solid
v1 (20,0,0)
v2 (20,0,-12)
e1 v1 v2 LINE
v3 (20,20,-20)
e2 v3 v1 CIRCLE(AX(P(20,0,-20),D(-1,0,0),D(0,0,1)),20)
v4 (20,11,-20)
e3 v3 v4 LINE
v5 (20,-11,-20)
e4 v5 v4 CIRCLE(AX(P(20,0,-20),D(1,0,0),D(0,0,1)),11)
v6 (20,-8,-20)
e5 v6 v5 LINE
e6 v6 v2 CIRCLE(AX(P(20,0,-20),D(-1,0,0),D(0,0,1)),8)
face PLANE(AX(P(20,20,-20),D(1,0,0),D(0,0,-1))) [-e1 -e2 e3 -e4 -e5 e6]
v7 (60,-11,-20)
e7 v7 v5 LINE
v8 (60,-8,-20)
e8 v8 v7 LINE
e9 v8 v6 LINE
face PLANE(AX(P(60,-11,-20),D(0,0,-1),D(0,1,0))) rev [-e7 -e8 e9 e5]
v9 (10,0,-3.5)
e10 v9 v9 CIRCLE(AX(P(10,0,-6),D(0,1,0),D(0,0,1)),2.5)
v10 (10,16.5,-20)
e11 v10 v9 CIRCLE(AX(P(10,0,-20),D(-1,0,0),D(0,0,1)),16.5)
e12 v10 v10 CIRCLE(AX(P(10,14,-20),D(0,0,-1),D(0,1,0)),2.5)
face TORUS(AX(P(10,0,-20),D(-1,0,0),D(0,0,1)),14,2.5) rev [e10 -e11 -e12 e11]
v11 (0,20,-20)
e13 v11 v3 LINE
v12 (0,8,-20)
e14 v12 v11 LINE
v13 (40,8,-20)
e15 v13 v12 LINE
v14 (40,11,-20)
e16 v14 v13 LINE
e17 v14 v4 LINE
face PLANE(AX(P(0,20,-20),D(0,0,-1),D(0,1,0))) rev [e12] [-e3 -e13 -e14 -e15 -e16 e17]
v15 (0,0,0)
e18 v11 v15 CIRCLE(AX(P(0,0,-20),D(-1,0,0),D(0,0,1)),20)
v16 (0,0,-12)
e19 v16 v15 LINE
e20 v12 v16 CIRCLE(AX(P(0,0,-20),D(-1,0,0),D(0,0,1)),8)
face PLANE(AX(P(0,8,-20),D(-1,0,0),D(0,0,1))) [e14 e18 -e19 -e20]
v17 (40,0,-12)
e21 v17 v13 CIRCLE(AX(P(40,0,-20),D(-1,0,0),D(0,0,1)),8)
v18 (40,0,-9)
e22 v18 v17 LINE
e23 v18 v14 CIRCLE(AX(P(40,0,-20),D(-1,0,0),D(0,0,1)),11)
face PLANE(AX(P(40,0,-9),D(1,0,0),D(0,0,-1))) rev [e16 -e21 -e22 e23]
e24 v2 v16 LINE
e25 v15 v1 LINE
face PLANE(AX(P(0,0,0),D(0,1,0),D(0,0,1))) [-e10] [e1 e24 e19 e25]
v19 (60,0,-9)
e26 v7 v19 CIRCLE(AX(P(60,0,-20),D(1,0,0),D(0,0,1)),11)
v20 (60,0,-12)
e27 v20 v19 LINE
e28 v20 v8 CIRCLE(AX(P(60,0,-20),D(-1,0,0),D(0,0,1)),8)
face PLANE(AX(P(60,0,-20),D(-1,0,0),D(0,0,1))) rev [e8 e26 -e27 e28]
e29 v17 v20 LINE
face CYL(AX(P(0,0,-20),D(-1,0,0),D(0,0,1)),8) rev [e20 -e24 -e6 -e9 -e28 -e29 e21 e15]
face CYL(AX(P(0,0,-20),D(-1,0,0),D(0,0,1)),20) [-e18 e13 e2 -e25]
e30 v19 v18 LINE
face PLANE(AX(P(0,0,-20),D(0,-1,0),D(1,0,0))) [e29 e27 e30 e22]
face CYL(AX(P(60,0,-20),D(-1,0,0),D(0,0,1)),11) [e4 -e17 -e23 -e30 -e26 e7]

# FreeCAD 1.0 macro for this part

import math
import FreeCAD as App
import Part
import Sketcher
from FreeCAD import Vector

doc = App.newDocument("Part")
body = doc.addObject("PartDesign::Body", "Body")

# Sketch on XZ plane
sketch1 = body.newObject("Sketcher::SketchObject", "Sketch")
sketch1.AttachmentSupport = (doc.getObject("XZ_Plane"), [""])
sketch1.MapMode = "FlatFace"
sketch1.addGeometry(Part.LineSegment(Vector(0, -12, 0), Vector(0, 0, 0)), False)
sketch1.addGeometry(Part.LineSegment(Vector(0, 0, 0), Vector(20, 0, 0)), False)
sketch1.addGeometry(Part.LineSegment(Vector(20, 0, 0), Vector(20, -12, 0)), False)
sketch1.addGeometry(Part.LineSegment(Vector(20, -12, 0), Vector(0, -12, 0)), False)
sketch1.addGeometry(Part.LineSegment(Vector(0, -20, 0), Vector(20, -20, 0)), True)  # axis
sketch1.addConstraint(Sketcher.Constraint("Coincident", 0, 2, 1, 1))
sketch1.addConstraint(Sketcher.Constraint("Coincident", 1, 2, 2, 1))
sketch1.addConstraint(Sketcher.Constraint("Coincident", 2, 2, 3, 1))
sketch1.addConstraint(Sketcher.Constraint("Coincident", 3, 2, 0, 1))
sketch1.addConstraint(Sketcher.Constraint("Vertical", 0))
sketch1.addConstraint(Sketcher.Constraint("Horizontal", 1))
sketch1.addConstraint(Sketcher.Constraint("Vertical", 2))
sketch1.addConstraint(Sketcher.Constraint("Horizontal", 3))
sketch1.addConstraint(Sketcher.Constraint("Horizontal", 4))
sketch1.addConstraint(Sketcher.Constraint("Coincident", 0, 2, -1, 1))
sketch1.addConstraint(Sketcher.Constraint("PointOnObject", 4, 1, -2))
sketch1.addConstraint(Sketcher.Constraint("Vertical", 2, 2, 4, 2))
sketch1.addConstraint(Sketcher.Constraint("DistanceX", 1, 1, 1, 2, 20.0))
sketch1.addConstraint(Sketcher.Constraint("DistanceY", 0, 1, 0, 2, 12.0))
sketch1.addConstraint(Sketcher.Constraint("DistanceY", 4, 1, -1, 1, 20.0))
revolution = body.newObject("PartDesign::Revolution", "Revolution")
revolution.Profile = sketch1
revolution.ReferenceAxis = (sketch1, ["Axis0"])
revolution.Angle = 270

# Sketch on XZ plane
sketch2 = body.newObject("Sketcher::SketchObject", "Sketch001")
sketch2.AttachmentSupport = (doc.getObject("XZ_Plane"), [""])
sketch2.MapMode = "FlatFace"
sketch2.addGeometry(Part.Circle(Vector(10, -6, 0), Vector(0, 0, 1), 2.5), False)
sketch2.addGeometry(Part.LineSegment(Vector(10, -20, 0), Vector(20, -20, 0)), True)  # axis
sketch2.addConstraint(Sketcher.Constraint("Horizontal", 1))
sketch2.addConstraint(Sketcher.Constraint("Vertical", 0, 3, 1, 1))
sketch2.addConstraint(Sketcher.Constraint("Diameter", 0, 5.0))
sketch2.addConstraint(Sketcher.Constraint("DistanceX", 1, 1, 1, 2, 10.0))
sketch2.addConstraint(Sketcher.Constraint("DistanceX", -1, 1, 0, 3, 10.0))
sketch2.addConstraint(Sketcher.Constraint("DistanceY", 0, 3, -1, 1, 6.0))
sketch2.addConstraint(Sketcher.Constraint("DistanceY", 1, 1, -1, 1, 20.0))
groove = body.newObject("PartDesign::Groove", "Groove")
groove.Profile = sketch2
groove.ReferenceAxis = (sketch2, ["Axis0"])
groove.Angle = 270

# Sketch on YZ plane
sketch3 = body.newObject("Sketcher::SketchObject", "Sketch002")
sketch3.AttachmentSupport = (doc.getObject("YZ_Plane"), [""])
sketch3.MapMode = "FlatFace"
sketch3.AttachmentOffset = App.Placement(Vector(0, 0, 20), App.Rotation())
sketch3.addGeometry(Part.LineSegment(Vector(-8, -20, 0), Vector(-11, -20, 0)), False)
sketch3.addGeometry(Part.ArcOfCircle(Part.Circle(Vector(0, -20, 0), Vector(0, 0, 1), 11), math.radians(180), math.radians(360)), False)
sketch3.addGeometry(Part.LineSegment(Vector(11, -20, 0), Vector(8, -20, 0)), False)
sketch3.addGeometry(Part.ArcOfCircle(Part.Circle(Vector(0, -20, 0), Vector(0, 0, 1), 8), math.radians(180), math.radians(360)), False)
sketch3.addConstraint(Sketcher.Constraint("Coincident", 0, 2, 1, 1))
sketch3.addConstraint(Sketcher.Constraint("Coincident", 1, 2, 2, 1))
sketch3.addConstraint(Sketcher.Constraint("Coincident", 2, 2, 3, 2))
sketch3.addConstraint(Sketcher.Constraint("Coincident", 3, 1, 0, 1))
sketch3.addConstraint(Sketcher.Constraint("Horizontal", 0))
sketch3.addConstraint(Sketcher.Constraint("Horizontal", 2))
sketch3.addConstraint(Sketcher.Constraint("Coincident", 3, 3, 1, 3))
sketch3.addConstraint(Sketcher.Constraint("Symmetric", 0, 2, 1, 2, -2))
sketch3.addConstraint(Sketcher.Constraint("Horizontal", 3, 3, 0, 2))
sketch3.addConstraint(Sketcher.Constraint("Radius", 1, 11.0))
sketch3.addConstraint(Sketcher.Constraint("Radius", 3, 8.0))
sketch3.addConstraint(Sketcher.Constraint("DistanceY", 1, 3, -1, 1, 20.0))
pad1 = body.newObject("PartDesign::Pad", "Pad")
pad1.Profile = sketch3
pad1.Length = 40

# Sketch on XY plane
sketch4 = body.newObject("Sketcher::SketchObject", "Sketch003")
sketch4.AttachmentSupport = (doc.getObject("XY_Plane"), [""])
sketch4.MapMode = "FlatFace"
sketch4.AttachmentOffset = App.Placement(Vector(0, 0, -20), App.Rotation())
sketch4.addGeometry(Part.LineSegment(Vector(40, 11, 0), Vector(40, 8, 0)), False)
sketch4.addGeometry(Part.LineSegment(Vector(40, 8, 0), Vector(60, 8, 0)), False)
sketch4.addGeometry(Part.LineSegment(Vector(60, 8, 0), Vector(60, 11, 0)), False)
sketch4.addGeometry(Part.LineSegment(Vector(60, 11, 0), Vector(40, 11, 0)), False)
sketch4.addConstraint(Sketcher.Constraint("Coincident", 0, 2, 1, 1))
sketch4.addConstraint(Sketcher.Constraint("Coincident", 1, 2, 2, 1))
sketch4.addConstraint(Sketcher.Constraint("Coincident", 2, 2, 3, 1))
sketch4.addConstraint(Sketcher.Constraint("Coincident", 3, 2, 0, 1))
sketch4.addConstraint(Sketcher.Constraint("Vertical", 0))
sketch4.addConstraint(Sketcher.Constraint("Horizontal", 1))
sketch4.addConstraint(Sketcher.Constraint("Vertical", 2))
sketch4.addConstraint(Sketcher.Constraint("Horizontal", 3))
sketch4.addConstraint(Sketcher.Constraint("DistanceX", 1, 1, 1, 2, 20.0))
sketch4.addConstraint(Sketcher.Constraint("DistanceY", 0, 2, 0, 1, 3.0))
sketch4.addConstraint(Sketcher.Constraint("DistanceX", -1, 1, 0, 2, 40.0))
sketch4.addConstraint(Sketcher.Constraint("DistanceY", -1, 1, 0, 2, 8.0))
revolution2 = body.newObject("PartDesign::Revolution", "Revolution001")
revolution2.Profile = sketch4
revolution2.ReferenceAxis = (sketch4, ["H_Axis"])
revolution2.Angle = 90

doc.recompute()
